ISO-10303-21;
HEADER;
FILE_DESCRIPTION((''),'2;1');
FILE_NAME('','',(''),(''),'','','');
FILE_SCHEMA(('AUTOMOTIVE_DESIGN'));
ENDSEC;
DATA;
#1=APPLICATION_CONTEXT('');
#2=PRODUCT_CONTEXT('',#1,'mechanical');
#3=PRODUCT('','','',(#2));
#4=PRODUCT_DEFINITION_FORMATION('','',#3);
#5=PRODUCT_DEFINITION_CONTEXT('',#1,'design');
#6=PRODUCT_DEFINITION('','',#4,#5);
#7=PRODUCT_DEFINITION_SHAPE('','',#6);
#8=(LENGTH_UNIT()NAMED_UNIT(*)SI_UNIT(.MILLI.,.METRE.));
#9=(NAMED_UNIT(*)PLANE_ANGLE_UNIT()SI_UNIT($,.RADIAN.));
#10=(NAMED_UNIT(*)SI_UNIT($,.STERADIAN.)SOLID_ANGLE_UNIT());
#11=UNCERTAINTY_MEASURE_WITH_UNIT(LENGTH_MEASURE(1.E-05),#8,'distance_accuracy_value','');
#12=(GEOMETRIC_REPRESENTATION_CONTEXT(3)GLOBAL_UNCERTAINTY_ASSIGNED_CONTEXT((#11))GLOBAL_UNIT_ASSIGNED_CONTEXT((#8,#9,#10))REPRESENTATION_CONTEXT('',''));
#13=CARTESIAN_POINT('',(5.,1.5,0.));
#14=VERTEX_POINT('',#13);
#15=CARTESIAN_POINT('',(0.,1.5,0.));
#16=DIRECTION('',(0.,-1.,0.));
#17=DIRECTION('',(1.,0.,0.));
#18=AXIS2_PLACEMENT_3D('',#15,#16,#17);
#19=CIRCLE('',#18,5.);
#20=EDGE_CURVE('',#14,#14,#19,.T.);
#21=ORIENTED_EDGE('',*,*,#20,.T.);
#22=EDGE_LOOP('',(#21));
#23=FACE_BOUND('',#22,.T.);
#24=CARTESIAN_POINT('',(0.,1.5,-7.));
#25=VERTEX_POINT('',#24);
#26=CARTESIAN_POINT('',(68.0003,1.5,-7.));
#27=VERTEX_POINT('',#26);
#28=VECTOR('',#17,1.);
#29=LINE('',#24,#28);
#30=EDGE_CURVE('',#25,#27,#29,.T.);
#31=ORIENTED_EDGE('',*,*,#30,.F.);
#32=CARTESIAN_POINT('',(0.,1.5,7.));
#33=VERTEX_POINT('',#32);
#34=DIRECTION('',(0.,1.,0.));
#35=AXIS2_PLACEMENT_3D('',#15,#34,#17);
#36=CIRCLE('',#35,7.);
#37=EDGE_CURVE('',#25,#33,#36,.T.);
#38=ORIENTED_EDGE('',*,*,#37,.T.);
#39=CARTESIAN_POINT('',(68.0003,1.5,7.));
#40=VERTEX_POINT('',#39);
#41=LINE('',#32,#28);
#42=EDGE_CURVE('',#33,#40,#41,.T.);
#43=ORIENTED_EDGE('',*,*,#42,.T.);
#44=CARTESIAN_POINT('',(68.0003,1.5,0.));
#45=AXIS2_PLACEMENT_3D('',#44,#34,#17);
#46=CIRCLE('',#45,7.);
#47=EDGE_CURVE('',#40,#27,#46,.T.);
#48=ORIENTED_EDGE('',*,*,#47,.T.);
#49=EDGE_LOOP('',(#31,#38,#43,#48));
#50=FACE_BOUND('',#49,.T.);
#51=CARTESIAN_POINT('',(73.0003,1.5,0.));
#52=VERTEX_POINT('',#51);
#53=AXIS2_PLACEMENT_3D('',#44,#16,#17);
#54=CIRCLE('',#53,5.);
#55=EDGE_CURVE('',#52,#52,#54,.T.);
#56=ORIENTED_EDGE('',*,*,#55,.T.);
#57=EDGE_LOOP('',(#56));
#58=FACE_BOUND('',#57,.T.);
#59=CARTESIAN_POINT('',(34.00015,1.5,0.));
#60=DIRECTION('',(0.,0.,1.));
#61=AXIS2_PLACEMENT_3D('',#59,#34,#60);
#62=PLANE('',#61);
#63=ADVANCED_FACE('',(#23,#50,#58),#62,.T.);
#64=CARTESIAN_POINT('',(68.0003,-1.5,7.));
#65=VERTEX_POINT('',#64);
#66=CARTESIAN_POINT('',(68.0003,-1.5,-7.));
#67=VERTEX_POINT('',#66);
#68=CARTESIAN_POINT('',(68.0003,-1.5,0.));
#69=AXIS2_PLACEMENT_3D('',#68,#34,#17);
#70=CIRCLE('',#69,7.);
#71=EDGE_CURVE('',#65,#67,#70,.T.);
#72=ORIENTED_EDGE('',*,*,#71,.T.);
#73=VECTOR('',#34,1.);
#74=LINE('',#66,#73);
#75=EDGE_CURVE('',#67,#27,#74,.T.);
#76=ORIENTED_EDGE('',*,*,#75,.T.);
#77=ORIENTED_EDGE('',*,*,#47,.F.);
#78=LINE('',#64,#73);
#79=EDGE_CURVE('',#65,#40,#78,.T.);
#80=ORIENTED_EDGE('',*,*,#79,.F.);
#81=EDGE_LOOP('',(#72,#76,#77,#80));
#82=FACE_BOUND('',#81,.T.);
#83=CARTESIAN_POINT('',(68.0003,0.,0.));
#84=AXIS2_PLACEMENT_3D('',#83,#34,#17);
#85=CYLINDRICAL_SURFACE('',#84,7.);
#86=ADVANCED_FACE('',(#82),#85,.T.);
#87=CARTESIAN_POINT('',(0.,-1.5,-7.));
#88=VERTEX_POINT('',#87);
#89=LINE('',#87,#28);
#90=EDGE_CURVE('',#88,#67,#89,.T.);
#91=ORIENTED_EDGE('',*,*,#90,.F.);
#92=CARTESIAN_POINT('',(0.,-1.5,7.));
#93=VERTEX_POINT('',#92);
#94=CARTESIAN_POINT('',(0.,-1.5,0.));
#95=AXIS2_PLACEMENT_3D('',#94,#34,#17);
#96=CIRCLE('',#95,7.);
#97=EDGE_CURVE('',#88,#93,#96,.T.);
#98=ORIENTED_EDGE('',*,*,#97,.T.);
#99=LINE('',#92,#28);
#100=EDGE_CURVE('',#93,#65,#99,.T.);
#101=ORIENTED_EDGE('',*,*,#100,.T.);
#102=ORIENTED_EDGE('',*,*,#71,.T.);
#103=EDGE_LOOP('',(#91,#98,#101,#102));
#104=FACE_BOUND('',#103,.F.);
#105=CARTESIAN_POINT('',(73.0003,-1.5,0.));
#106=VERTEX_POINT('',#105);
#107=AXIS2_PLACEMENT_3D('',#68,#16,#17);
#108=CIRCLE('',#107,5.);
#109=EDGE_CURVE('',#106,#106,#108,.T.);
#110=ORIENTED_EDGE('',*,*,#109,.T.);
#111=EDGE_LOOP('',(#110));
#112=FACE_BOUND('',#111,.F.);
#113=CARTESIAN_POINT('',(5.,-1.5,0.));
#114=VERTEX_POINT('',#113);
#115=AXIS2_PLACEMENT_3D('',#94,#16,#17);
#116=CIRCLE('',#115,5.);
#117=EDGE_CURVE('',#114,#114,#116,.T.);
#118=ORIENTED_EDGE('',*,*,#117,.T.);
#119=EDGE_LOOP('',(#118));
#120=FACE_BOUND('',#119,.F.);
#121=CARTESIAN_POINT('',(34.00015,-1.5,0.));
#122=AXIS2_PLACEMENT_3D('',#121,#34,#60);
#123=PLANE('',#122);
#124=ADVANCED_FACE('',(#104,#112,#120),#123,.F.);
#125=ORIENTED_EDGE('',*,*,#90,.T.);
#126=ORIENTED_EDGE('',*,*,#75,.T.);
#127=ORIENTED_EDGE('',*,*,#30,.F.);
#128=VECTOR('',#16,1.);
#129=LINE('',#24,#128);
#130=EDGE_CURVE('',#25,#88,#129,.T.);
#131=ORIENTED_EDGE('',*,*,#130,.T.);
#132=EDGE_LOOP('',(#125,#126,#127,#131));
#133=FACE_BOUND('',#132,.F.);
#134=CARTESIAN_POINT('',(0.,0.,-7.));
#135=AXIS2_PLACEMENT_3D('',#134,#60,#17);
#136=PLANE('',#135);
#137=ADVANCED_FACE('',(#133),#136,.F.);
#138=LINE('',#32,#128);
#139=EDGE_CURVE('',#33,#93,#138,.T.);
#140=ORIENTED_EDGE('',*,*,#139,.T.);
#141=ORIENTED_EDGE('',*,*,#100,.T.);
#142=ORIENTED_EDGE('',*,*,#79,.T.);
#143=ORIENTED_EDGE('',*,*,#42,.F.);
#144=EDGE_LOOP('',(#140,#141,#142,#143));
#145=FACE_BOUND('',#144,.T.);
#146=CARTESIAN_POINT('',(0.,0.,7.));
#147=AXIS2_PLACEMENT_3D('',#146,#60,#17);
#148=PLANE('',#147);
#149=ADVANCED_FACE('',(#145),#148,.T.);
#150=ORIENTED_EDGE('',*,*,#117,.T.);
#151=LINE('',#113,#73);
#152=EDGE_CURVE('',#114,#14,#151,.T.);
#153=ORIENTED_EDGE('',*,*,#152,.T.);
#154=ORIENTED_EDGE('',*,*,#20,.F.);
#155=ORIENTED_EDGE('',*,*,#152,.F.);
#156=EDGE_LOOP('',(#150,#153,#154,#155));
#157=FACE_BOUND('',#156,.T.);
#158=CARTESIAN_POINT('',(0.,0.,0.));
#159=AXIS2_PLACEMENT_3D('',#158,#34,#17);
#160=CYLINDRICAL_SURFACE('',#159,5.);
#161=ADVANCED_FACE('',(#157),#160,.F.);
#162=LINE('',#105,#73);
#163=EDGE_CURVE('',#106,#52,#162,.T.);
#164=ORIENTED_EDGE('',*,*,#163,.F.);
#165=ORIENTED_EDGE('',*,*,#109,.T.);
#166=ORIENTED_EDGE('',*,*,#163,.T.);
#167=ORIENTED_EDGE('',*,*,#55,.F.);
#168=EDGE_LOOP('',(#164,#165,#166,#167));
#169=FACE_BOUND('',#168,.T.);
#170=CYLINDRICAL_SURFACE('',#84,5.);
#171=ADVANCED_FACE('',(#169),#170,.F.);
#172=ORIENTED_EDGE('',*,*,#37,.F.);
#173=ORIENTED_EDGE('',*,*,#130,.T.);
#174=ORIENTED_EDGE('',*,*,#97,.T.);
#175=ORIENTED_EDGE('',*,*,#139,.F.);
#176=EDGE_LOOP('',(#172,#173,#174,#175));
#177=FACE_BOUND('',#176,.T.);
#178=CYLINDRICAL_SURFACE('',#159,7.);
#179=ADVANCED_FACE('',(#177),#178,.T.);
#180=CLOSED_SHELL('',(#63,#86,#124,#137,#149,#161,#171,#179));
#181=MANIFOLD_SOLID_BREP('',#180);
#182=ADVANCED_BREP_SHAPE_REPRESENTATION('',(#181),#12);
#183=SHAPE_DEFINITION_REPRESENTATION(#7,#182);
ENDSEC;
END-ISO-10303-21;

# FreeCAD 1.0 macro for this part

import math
import FreeCAD as App
import Part
import Sketcher
Q = App.Units.Quantity

doc = App.newDocument("Part")
body = doc.addObject("PartDesign::Body", "Body")

# Sketch on XZ plane
sketch1 = body.newObject("Sketcher::SketchObject", "Sketch")
sketch1.AttachmentSupport = (doc.getObject("XZ_Plane"), [""])
sketch1.MapMode = "FlatFace"
sketch1.addGeometry(Part.LineSegment(App.Vector(68, 7, 0), App.Vector(0, 7, 0)), False)
sketch1.addGeometry(Part.ArcOfCircle(Part.Circle(App.Vector(0, 0, 0), App.Vector(0, 0, 1), 7), math.radians(90), math.radians(270)), False)
sketch1.addGeometry(Part.LineSegment(App.Vector(0, -7, 0), App.Vector(68, -7, 0)), False)
sketch1.addGeometry(Part.ArcOfCircle(Part.Circle(App.Vector(68, 0, 0), App.Vector(0, 0, 1), 7), math.radians(-90), math.radians(90)), False)
sketch1.addGeometry(Part.Circle(App.Vector(0, 0, 0), App.Vector(0, 0, 1), 5), False)
sketch1.addGeometry(Part.Circle(App.Vector(68, 0, 0), App.Vector(0, 0, 1), 5), False)
sketch1.addConstraint(Sketcher.Constraint("Tangent", 0, 2, 1, 1))
sketch1.addConstraint(Sketcher.Constraint("Tangent", 1, 2, 2, 1))
sketch1.addConstraint(Sketcher.Constraint("Tangent", 2, 2, 3, 1))
sketch1.addConstraint(Sketcher.Constraint("Tangent", 3, 2, 0, 1))
sketch1.addConstraint(Sketcher.Constraint("Horizontal", 0))
sketch1.addConstraint(Sketcher.Constraint("Horizontal", 2))
sketch1.addConstraint(Sketcher.Constraint("Coincident", 1, 3, -1, 1))
sketch1.addConstraint(Sketcher.Constraint("Coincident", 4, 3, -1, 1))
sketch1.addConstraint(Sketcher.Constraint("Coincident", 5, 3, 3, 3))
sketch1.addConstraint(Sketcher.Constraint("Equal", 4, 5))
sketch1.addConstraint(Sketcher.Constraint("Diameter", 4, Q("10 mm")))
sketch1.addConstraint(Sketcher.Constraint("Radius", 1, Q("7 mm")))
sketch1.addConstraint(Sketcher.Constraint("DistanceX", 0, 2, 0, 1, Q("68.0003 mm")))
pad1 = body.newObject("PartDesign::Pad", "Pad")
pad1.Profile = sketch1
pad1.Length = 3
pad1.Midplane = True

doc.recompute()
